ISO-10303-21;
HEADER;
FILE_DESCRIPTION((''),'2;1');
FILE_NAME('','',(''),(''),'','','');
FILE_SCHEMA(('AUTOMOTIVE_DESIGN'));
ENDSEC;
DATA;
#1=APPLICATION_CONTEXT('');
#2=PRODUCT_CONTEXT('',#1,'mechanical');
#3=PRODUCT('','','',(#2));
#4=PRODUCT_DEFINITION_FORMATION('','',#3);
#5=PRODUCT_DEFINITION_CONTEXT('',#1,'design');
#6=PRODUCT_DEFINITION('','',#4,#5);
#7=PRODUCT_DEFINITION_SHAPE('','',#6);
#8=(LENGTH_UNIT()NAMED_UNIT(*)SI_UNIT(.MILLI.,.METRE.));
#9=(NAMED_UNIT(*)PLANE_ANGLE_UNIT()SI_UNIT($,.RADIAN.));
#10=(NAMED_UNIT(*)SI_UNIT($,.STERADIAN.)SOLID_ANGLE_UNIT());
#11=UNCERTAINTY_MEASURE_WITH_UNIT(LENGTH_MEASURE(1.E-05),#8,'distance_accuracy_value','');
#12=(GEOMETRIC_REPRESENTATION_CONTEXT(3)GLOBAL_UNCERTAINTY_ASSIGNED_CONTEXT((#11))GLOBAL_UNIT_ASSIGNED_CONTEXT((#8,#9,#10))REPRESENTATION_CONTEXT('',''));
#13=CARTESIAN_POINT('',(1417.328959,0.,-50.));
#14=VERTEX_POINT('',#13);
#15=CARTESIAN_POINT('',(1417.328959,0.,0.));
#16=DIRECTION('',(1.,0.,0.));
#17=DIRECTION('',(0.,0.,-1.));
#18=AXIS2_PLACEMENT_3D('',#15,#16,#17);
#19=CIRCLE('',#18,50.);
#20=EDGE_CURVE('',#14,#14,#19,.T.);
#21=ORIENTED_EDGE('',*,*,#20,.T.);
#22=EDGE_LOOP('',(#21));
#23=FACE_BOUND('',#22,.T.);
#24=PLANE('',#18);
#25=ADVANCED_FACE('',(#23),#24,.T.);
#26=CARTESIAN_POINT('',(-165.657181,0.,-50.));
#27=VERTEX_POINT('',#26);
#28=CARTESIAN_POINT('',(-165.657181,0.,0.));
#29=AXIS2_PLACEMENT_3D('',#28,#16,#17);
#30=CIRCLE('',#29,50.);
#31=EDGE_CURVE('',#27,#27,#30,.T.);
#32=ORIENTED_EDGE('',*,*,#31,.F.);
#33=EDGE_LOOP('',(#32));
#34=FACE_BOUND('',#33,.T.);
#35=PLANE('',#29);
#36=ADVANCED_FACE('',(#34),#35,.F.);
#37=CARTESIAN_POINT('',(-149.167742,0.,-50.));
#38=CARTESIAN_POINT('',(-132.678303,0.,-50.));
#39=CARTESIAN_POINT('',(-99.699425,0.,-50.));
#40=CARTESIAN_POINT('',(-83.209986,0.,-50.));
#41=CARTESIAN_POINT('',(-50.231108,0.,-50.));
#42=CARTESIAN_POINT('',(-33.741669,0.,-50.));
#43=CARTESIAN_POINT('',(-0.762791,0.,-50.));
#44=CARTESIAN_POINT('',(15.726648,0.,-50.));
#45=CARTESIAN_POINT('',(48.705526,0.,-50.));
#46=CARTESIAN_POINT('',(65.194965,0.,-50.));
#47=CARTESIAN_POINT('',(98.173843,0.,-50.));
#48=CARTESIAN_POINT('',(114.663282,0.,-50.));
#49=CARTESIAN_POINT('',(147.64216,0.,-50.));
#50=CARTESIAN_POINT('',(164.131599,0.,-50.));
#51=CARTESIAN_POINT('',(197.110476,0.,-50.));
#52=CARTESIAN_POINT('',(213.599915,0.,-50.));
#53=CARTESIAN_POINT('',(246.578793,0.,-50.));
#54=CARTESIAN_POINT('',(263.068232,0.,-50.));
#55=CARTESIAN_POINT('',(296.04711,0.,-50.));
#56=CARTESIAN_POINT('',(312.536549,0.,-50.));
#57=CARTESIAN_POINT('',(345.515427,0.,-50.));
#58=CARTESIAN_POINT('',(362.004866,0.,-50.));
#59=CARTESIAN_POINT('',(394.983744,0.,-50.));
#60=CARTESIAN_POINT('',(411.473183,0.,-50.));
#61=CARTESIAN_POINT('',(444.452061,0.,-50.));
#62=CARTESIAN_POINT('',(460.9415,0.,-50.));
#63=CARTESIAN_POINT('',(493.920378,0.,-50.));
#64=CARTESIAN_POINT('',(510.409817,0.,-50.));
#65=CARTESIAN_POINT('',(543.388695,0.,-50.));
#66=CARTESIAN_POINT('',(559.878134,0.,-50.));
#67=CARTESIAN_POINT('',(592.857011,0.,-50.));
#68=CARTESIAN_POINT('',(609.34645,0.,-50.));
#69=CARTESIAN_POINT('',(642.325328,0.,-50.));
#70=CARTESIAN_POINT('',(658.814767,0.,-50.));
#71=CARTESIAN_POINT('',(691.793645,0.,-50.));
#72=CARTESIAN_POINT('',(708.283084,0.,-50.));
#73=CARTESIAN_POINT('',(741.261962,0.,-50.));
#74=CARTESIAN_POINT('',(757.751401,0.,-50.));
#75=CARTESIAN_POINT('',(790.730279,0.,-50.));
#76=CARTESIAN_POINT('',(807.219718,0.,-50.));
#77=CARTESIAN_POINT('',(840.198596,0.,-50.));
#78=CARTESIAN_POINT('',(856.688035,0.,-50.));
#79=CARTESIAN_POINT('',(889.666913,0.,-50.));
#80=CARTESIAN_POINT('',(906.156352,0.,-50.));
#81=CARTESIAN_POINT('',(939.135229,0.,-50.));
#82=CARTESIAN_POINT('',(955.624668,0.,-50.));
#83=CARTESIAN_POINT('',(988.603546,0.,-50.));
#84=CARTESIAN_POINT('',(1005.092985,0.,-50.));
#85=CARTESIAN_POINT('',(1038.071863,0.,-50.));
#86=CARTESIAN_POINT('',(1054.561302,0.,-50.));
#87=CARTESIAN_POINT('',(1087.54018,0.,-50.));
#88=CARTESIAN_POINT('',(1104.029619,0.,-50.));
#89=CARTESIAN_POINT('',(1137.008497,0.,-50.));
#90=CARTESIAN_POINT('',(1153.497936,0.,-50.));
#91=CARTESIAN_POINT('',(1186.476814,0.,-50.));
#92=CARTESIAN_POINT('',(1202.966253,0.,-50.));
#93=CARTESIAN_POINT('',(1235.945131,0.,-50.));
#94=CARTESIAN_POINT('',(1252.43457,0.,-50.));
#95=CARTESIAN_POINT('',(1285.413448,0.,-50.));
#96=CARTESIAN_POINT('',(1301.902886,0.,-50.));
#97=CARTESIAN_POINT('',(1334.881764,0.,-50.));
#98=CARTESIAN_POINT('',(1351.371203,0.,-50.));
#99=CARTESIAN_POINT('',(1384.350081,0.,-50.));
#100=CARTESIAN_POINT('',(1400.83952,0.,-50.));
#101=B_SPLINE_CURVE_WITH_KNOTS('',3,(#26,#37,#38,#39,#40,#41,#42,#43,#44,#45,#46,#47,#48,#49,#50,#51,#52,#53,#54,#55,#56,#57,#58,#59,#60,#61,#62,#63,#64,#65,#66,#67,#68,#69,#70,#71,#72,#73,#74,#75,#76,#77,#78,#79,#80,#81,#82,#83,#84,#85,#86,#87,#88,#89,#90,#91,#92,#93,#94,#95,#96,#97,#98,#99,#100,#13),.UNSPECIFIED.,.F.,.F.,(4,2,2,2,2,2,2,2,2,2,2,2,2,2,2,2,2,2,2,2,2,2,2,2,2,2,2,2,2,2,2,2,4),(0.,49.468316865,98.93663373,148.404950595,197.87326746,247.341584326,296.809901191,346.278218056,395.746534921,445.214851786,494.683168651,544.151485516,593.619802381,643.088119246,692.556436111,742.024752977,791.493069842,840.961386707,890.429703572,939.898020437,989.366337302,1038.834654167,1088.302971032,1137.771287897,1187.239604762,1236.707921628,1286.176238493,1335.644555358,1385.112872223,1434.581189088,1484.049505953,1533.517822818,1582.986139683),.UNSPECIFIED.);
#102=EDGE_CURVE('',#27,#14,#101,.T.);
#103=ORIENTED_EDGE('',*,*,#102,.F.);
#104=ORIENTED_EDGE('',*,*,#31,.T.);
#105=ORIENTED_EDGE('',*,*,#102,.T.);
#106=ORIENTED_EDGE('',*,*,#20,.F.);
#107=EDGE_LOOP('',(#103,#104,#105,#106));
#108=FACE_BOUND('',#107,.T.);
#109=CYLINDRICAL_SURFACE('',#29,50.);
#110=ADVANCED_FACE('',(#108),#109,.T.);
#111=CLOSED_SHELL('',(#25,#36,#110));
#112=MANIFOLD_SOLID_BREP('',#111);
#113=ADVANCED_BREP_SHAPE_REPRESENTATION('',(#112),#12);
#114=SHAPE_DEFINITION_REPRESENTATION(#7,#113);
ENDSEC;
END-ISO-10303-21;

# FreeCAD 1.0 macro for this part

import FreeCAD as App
import Part
import Sketcher
from FreeCAD import Vector

doc = App.newDocument("Part")
body = doc.addObject("PartDesign::Body", "Body")

# Sketch on YZ plane
sketch1 = doc.addObject("Sketcher::SketchObject", "Sketch")
body.addObject(sketch1)
sketch1.AttachmentSupport = (doc.YZ_Plane, [""])
sketch1.MapMode = "FlatFace"
sketch1.addGeometry(Part.Circle(Vector(0, 0, 0), Vector(0, 0, 1), 50), False)
sketch1.addConstraint([
    Sketcher.Constraint("Coincident", 0, 3, -1, 1),
    Sketcher.Constraint("Diameter", 0, 100.0),
])
pad1 = doc.addObject("PartDesign::Pad", "Pad")
body.addObject(pad1)
pad1.Profile = sketch1
pad1.Type = "TwoLengths"
pad1.Length = 1417.328959
pad1.Length2 = 165.657181

doc.recompute()
